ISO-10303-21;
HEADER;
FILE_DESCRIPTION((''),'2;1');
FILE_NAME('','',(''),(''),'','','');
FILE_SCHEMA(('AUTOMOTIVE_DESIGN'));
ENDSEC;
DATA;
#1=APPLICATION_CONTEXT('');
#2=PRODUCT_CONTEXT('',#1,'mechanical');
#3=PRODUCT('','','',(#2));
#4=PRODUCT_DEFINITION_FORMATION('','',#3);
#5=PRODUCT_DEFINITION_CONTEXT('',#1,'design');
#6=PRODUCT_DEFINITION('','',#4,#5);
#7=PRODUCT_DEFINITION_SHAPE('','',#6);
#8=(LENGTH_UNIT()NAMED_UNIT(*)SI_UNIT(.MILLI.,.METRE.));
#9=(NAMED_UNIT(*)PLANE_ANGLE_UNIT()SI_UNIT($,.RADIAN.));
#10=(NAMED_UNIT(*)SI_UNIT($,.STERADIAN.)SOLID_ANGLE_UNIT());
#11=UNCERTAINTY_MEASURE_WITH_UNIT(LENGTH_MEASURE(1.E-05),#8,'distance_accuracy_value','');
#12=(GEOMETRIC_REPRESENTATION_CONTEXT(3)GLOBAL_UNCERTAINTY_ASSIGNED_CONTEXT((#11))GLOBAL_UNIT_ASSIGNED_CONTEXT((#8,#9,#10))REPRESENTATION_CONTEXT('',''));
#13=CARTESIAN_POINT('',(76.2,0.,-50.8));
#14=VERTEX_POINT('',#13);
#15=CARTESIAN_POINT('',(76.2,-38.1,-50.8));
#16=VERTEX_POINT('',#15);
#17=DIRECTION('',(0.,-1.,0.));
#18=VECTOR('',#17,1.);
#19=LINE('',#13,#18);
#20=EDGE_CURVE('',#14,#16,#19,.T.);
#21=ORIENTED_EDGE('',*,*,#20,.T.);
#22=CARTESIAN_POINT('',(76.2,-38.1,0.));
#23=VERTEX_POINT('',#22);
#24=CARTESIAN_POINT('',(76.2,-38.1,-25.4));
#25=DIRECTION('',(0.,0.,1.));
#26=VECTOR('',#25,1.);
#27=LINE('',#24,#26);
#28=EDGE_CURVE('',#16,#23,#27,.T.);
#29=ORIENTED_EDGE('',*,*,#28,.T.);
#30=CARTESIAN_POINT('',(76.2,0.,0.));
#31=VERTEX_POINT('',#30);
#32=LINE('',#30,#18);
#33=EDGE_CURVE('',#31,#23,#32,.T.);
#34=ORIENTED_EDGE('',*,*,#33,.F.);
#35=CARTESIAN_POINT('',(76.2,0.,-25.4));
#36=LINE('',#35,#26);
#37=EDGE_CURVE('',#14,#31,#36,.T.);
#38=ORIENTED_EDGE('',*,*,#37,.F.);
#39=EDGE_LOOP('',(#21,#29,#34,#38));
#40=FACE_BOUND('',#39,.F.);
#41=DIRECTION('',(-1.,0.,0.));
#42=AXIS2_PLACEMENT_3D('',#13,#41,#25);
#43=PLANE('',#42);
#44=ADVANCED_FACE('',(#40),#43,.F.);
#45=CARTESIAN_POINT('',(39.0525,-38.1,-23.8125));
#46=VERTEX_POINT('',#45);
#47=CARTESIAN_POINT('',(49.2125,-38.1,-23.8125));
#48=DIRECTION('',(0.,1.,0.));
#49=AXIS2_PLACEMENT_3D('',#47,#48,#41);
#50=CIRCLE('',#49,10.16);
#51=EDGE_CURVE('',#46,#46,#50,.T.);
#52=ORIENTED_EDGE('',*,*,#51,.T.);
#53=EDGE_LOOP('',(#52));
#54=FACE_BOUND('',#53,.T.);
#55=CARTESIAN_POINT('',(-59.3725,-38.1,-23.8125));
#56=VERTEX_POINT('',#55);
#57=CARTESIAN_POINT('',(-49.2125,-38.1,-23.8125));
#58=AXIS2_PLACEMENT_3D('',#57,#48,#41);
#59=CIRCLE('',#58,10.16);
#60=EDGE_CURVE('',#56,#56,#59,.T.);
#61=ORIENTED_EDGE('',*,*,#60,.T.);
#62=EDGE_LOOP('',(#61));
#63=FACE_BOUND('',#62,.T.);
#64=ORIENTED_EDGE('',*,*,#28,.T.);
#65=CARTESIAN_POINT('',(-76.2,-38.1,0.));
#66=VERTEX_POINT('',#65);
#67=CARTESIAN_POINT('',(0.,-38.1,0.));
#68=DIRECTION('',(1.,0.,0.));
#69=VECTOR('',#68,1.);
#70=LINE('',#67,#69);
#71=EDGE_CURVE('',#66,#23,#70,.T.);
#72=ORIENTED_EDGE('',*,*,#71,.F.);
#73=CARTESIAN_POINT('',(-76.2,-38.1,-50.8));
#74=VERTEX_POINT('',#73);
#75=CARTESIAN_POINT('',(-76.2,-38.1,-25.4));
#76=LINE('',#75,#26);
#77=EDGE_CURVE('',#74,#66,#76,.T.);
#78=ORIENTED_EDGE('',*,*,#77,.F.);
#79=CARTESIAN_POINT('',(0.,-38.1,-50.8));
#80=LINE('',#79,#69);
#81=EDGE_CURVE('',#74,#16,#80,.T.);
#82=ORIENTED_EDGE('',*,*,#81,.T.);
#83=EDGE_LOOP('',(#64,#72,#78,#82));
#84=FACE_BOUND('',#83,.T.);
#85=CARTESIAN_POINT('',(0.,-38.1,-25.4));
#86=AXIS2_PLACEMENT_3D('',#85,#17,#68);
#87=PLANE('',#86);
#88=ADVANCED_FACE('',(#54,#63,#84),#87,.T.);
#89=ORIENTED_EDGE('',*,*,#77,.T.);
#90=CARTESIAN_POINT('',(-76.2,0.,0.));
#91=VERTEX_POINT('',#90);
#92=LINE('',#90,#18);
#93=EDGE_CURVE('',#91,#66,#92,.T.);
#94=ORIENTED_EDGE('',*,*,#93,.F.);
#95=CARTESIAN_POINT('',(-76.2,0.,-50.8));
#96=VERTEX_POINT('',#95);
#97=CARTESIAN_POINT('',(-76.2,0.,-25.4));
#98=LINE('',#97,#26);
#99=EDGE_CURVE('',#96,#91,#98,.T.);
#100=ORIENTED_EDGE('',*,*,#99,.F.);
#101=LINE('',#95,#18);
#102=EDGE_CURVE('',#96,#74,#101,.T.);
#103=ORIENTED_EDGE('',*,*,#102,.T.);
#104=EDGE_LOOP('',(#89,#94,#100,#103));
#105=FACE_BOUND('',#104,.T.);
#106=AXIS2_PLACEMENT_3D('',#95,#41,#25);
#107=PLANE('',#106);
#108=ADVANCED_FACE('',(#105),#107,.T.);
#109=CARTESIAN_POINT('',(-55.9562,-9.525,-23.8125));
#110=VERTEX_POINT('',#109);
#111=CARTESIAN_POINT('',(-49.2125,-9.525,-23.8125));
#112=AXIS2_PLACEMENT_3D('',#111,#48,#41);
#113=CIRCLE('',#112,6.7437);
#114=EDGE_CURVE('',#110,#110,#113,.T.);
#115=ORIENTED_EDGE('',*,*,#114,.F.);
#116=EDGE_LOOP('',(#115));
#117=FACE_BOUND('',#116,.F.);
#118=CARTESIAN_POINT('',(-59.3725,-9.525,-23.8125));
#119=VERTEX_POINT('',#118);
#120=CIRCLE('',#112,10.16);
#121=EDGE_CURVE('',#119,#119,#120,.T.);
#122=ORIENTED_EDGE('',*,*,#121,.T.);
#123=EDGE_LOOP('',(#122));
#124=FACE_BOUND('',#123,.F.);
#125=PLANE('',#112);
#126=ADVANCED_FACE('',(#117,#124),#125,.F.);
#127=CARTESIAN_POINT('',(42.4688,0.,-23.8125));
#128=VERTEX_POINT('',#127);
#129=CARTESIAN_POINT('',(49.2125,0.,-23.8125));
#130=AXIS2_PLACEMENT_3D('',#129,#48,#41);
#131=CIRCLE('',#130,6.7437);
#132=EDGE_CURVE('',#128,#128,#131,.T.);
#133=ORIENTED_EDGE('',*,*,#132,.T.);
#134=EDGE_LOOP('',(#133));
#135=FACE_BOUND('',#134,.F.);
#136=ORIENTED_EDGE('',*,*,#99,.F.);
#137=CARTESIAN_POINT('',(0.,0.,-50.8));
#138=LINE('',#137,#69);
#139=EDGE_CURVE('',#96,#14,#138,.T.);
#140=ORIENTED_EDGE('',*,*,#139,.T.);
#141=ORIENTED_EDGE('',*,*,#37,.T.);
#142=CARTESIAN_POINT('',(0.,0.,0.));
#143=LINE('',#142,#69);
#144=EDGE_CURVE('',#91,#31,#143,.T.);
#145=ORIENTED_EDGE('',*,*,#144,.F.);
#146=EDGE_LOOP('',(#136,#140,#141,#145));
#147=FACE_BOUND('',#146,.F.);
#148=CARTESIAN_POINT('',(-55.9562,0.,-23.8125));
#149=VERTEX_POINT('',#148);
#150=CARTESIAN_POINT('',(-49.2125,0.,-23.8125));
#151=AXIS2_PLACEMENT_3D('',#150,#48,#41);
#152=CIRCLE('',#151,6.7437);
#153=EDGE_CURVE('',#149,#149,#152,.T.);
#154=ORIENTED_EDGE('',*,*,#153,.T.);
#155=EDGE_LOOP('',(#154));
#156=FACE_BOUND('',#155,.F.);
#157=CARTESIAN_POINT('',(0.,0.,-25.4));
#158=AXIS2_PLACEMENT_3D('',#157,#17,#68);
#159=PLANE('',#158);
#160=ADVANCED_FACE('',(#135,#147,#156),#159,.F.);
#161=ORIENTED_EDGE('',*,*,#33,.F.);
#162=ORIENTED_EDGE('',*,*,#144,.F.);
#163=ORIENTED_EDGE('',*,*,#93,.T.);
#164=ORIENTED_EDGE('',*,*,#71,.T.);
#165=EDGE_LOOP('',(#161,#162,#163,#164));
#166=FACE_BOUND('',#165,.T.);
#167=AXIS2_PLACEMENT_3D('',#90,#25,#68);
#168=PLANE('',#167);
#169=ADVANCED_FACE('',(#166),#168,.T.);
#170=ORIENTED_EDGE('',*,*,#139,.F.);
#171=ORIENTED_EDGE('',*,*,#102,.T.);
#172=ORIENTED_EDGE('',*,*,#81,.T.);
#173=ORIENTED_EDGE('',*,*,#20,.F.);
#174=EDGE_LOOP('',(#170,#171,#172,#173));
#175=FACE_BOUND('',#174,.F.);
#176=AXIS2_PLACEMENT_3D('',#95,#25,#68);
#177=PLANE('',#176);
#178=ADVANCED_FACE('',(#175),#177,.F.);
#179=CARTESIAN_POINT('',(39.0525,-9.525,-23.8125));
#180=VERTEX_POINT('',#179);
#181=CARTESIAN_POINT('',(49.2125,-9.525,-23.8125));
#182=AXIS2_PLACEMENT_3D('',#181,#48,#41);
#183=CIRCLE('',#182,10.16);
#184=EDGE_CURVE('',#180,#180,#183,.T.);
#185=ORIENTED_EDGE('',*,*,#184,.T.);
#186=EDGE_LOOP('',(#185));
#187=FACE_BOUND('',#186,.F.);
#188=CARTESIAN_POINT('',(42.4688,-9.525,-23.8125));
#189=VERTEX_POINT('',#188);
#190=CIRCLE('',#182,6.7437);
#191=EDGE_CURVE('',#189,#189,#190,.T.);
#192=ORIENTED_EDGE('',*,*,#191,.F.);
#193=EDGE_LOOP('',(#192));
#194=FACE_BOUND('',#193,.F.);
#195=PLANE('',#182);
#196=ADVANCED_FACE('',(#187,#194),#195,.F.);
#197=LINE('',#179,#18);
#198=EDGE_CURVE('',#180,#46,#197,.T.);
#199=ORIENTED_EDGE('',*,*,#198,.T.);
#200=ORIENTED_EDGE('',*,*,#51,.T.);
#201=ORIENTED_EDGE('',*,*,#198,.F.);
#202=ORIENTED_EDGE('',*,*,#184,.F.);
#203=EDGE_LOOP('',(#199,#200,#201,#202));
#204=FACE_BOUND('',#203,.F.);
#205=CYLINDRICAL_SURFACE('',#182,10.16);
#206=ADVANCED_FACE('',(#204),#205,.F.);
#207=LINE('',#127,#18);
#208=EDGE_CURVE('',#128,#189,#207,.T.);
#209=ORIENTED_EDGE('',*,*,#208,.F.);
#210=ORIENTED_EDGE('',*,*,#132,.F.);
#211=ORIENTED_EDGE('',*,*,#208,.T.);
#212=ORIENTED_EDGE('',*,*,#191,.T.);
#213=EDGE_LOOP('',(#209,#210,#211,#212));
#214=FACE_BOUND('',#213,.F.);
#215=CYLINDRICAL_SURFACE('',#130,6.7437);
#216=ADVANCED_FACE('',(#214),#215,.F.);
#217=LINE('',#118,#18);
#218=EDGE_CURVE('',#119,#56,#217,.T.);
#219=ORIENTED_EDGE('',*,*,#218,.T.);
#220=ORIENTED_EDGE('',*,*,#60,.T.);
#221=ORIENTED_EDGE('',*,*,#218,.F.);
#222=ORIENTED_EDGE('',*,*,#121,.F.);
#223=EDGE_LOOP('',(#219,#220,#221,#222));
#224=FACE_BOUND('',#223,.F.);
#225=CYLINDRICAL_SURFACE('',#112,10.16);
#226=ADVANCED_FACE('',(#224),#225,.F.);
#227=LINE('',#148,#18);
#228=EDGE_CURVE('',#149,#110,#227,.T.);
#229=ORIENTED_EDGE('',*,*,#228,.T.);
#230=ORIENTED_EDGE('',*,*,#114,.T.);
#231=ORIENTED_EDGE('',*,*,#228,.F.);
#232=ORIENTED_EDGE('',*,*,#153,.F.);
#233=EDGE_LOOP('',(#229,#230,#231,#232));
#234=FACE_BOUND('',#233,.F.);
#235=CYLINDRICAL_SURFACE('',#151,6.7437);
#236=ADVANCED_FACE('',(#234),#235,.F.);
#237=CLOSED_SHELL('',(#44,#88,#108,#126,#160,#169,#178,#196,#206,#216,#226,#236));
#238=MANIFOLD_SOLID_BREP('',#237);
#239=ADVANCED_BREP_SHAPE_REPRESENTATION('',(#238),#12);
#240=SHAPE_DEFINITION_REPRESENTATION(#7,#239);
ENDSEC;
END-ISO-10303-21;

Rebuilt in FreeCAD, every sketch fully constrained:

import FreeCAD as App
import Part
import Sketcher

V = App.Vector
Q = App.Units.Quantity


def add_polygon(sketch, points):
    """Adds a closed chain of lines whose ends are joined by coincident constraints."""
    first, n = sketch.GeometryCount, len(points)
    for a, b in zip(points, points[1:] + points[:1]):
        sketch.addGeometry(Part.LineSegment(App.Vector(*a, 0), App.Vector(*b, 0)), False)
    for i in range(n):
        sketch.addConstraint(Sketcher.Constraint("Coincident", first + i, 2, first + (i + 1) % n, 1))

doc = App.newDocument("Part")
params = doc.addObject("Spreadsheet::Sheet", "Params")
for row, (alias, value) in enumerate([
    ("sketch1_width", "6 in"),
    ("sketch1_height", "2 in"),
    ("pad1_length", "1.5 in"),
    ("sketch2_diameter", "0.531 in"),
    ("pocket1_length", "0.375 in"),
    ("sketch3_diameter", "0.8 in"),
    ("pocket2_length", "6 in"),
], start=1):
    params.set(f"A{row}", alias)
    params.set(f"B{row}", "=" + value)
    params.setAlias(f"B{row}", alias)

body = doc.addObject("PartDesign::Body", "Body")

sketch1 = body.newObject("Sketcher::SketchObject", "Sketch")
sketch1.AttachmentSupport = (doc.getObject("XZ_Plane"), [""])
sketch1.MapMode = "FlatFace"
add_polygon(sketch1, [(-76, 0), (-76, -51), (76, -51), (76, 0)])
sketch1.addConstraint([
    Sketcher.Constraint("Vertical", 0),
    Sketcher.Constraint("Horizontal", 1),
    Sketcher.Constraint("Vertical", 2),
    Sketcher.Constraint("Horizontal", 3),
    Sketcher.Constraint("Symmetric", 2, 2, 3, 2, -1, 1),
    Sketcher.Constraint("DistanceX", 1, 1, 1, 2, Q("6 in")),
    Sketcher.Constraint("DistanceY", 0, 2, 0, 1, Q("2 in")),
])
sketch1.setExpression("Constraints[9]", "Params.sketch1_width")
sketch1.setExpression("Constraints[10]", "Params.sketch1_height")
pad1 = body.newObject("PartDesign::Pad", "Pad")
pad1.Profile = sketch1
pad1.setExpression("Length", "Params.pad1_length")

sketch2 = body.newObject("Sketcher::SketchObject", "Sketch001")
sketch2.AttachmentSupport = (doc.getObject("XZ_Plane"), [""])
sketch2.MapMode = "FlatFace"
sketch2.addGeometry([
    Part.Circle(V(-49, -24, 0), V(0, 0, 1), 7),
    Part.Circle(V(49, -24, 0), V(0, 0, 1), 7),
], False)
sketch2.addConstraint([
    Sketcher.Constraint("Equal", 0, 1),
    Sketcher.Constraint("Symmetric", 0, 3, 1, 3, -2),
    Sketcher.Constraint("Diameter", 0, Q("0.531 in")),
    Sketcher.Constraint("DistanceX", 0, 3, -1, 1, Q("1.9375 in")),
    Sketcher.Constraint("DistanceY", 0, 3, -1, 1, Q("0.9375 in")),
])
sketch2.setExpression("Constraints[2]", "Params.sketch2_diameter")
pocket1 = body.newObject("PartDesign::Pocket", "Pocket")
pocket1.Profile = sketch2
pocket1.setExpression("Length", "Params.pocket1_length")
pocket1.Reversed = True

sketch3 = body.newObject("Sketcher::SketchObject", "Sketch002")
sketch3.AttachmentSupport = (doc.getObject("XZ_Plane"), [""])
sketch3.MapMode = "FlatFace"
sketch3.AttachmentOffset = App.Placement(V(0, 0, 0.375 * 25.4), App.Rotation())
sketch3.addGeometry([
    Part.Circle(V(49, -24, 0), V(0, 0, 1), 10),
    Part.Circle(V(-49, -24, 0), V(0, 0, 1), 10),
], False)
sketch3.addConstraint([
    Sketcher.Constraint("Equal", 0, 1),
    Sketcher.Constraint("Symmetric", 0, 3, 1, 3, -2),
    Sketcher.Constraint("Diameter", 0, Q("0.8 in")),
    Sketcher.Constraint("DistanceX", -1, 1, 0, 3, Q("1.9375 in")),
    Sketcher.Constraint("DistanceY", 0, 3, -1, 1, Q("0.9375 in")),
])
sketch3.setExpression("Constraints[2]", "Params.sketch3_diameter")
pocket2 = body.newObject("PartDesign::Pocket", "Pocket001")
pocket2.Profile = sketch3
pocket2.setExpression("Length", "Params.pocket2_length")
pocket2.Reversed = True

doc.recompute()
